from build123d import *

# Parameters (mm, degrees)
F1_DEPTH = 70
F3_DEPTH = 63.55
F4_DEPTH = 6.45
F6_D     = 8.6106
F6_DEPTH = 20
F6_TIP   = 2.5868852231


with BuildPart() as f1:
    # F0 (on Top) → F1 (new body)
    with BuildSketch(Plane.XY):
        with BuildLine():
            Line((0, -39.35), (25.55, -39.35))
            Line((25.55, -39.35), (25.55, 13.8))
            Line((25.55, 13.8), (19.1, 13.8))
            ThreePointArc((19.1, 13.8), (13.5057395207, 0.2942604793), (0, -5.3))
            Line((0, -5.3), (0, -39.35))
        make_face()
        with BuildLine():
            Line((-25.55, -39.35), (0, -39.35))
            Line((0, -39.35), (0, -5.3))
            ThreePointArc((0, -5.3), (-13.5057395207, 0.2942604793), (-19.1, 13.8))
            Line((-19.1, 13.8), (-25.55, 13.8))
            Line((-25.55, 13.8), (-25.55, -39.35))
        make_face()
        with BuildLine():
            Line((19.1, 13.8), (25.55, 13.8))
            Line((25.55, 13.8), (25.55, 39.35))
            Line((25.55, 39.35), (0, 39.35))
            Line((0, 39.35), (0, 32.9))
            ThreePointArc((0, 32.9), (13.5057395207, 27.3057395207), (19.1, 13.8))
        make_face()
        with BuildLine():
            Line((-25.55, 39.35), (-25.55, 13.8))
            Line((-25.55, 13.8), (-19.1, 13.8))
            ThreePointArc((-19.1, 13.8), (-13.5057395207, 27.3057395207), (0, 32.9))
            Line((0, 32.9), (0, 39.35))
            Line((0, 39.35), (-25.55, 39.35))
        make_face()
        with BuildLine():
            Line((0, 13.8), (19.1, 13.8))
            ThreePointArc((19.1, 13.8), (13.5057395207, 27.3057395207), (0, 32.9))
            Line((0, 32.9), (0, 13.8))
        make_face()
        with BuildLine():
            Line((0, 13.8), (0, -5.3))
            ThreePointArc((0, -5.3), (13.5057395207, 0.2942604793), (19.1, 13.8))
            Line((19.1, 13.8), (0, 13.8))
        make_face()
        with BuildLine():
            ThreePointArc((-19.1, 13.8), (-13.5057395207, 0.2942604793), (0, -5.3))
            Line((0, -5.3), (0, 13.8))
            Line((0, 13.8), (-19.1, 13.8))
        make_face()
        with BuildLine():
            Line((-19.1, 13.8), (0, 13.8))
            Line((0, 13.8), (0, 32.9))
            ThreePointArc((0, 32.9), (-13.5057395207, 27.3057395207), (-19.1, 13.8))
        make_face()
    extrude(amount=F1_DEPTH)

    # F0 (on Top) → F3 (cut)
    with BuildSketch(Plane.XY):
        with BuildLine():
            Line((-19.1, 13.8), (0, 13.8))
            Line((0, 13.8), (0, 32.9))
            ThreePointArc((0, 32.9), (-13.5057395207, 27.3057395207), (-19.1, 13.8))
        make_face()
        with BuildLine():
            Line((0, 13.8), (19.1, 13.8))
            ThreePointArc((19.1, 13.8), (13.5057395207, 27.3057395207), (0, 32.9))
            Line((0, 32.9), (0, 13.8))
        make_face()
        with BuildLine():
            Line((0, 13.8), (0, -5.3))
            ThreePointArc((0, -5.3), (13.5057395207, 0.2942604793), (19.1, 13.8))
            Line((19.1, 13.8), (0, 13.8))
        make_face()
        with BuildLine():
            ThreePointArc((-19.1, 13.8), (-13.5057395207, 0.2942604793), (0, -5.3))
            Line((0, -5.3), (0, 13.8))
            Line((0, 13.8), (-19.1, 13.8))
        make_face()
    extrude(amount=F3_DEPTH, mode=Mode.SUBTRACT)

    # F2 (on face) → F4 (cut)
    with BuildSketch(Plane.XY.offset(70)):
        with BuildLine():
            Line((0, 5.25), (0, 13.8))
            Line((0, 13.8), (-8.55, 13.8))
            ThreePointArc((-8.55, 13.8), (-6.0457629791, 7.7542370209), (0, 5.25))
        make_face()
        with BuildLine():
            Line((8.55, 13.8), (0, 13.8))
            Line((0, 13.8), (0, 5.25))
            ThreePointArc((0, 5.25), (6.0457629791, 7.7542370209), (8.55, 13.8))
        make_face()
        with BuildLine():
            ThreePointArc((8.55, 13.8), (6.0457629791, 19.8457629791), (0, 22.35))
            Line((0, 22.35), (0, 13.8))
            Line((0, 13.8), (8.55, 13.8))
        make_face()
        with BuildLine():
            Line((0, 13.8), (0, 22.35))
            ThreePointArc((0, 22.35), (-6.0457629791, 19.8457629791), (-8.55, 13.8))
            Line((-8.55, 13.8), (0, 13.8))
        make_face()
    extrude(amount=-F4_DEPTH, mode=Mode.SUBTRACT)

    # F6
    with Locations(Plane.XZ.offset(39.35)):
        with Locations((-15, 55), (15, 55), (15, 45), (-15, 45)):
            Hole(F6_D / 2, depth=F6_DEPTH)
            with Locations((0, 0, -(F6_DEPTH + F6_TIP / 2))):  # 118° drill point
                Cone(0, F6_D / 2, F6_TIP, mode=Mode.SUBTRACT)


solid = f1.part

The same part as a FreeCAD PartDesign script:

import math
import FreeCAD as App
import Part
import Sketcher
Q = App.Units.Quantity


def add_polygon(sketch, points):
    """Adds a closed chain of lines whose ends are joined by coincident constraints."""
    first, n = sketch.GeometryCount, len(points)
    for a, b in zip(points, points[1:] + points[:1]):
        sketch.addGeometry(Part.LineSegment(App.Vector(*a, 0), App.Vector(*b, 0)), False)
    for i in range(n):
        sketch.addConstraint(Sketcher.Constraint("Coincident", first + i, 2, first + (i + 1) % n, 1))

doc = App.newDocument("Part")
body = doc.addObject("PartDesign::Body", "Body")

sketch1 = body.newObject("Sketcher::SketchObject", "Sketch")
sketch1.AttachmentSupport = (doc.getObject("XY_Plane"), [""])
sketch1.MapMode = "FlatFace"
add_polygon(sketch1, [(26, -39), (26, 39), (-26, 39), (-26, -39)])
sketch1.addConstraint([
    Sketcher.Constraint("Vertical", 0),
    Sketcher.Constraint("Horizontal", 1),
    Sketcher.Constraint("Vertical", 2),
    Sketcher.Constraint("Horizontal", 3),
    Sketcher.Constraint("Symmetric", 0, 2, 2, 2, -1, 1),
    Sketcher.Constraint("DistanceX", 1, 2, 1, 1, Q("51.1 mm")),
    Sketcher.Constraint("DistanceY", 0, 1, 0, 2, Q("78.7 mm")),
])
pad1 = body.newObject("PartDesign::Pad", "Pad")
pad1.Profile = sketch1
pad1.Length = 70

sketch2 = body.newObject("Sketcher::SketchObject", "Sketch001")
sketch2.AttachmentSupport = (doc.getObject("XY_Plane"), [""])
sketch2.MapMode = "FlatFace"
sketch2.addGeometry([
    Part.ArcOfCircle(Part.Circle(App.Vector(0, 14, 0), App.Vector(0, 0, 1), 19), math.radians(-90), math.radians(0)),
    Part.ArcOfCircle(Part.Circle(App.Vector(0, 14, 0), App.Vector(0, 0, 1), 19), math.radians(0), math.radians(90)),
    Part.ArcOfCircle(Part.Circle(App.Vector(0, 14, 0), App.Vector(0, 0, 1), 19), math.radians(90), math.radians(180)),
    Part.ArcOfCircle(Part.Circle(App.Vector(0, 14, 0), App.Vector(0, 0, 1), 19), math.radians(180), math.radians(270)),
], False)
sketch2.addConstraint([
    Sketcher.Constraint("Tangent", 0, 2, 1, 1),
    Sketcher.Constraint("Tangent", 1, 2, 2, 1),
    Sketcher.Constraint("Tangent", 2, 2, 3, 1),
    Sketcher.Constraint("Tangent", 3, 2, 0, 1),
    Sketcher.Constraint("Equal", 0, 1),
    Sketcher.Constraint("Symmetric", 0, 2, 2, 2, -2),
    Sketcher.Constraint("PointOnObject", 1, 2, -2),
    Sketcher.Constraint("PointOnObject", 3, 2, -2),
    Sketcher.Constraint("Horizontal", 3, 3, 0, 2),
    Sketcher.Constraint("Radius", 0, Q("19.1 mm")),
    Sketcher.Constraint("DistanceY", -1, 1, 0, 3, Q("13.8 mm")),
])
pocket1 = body.newObject("PartDesign::Pocket", "Pocket")
pocket1.Profile = sketch2
pocket1.Length = 63.55
pocket1.Reversed = True

sketch3 = body.newObject("Sketcher::SketchObject", "Sketch002")
sketch3.AttachmentSupport = (doc.getObject("XY_Plane"), [""])
sketch3.MapMode = "FlatFace"
sketch3.AttachmentOffset = App.Placement(App.Vector(0, 0, 70), App.Rotation())
sketch3.addGeometry([
    Part.ArcOfCircle(Part.Circle(App.Vector(0, 14, 0), App.Vector(0, 0, 1), 9), math.radians(180), math.radians(270)),
    Part.ArcOfCircle(Part.Circle(App.Vector(0, 14, 0), App.Vector(0, 0, 1), 9), math.radians(-90), math.radians(0)),
    Part.ArcOfCircle(Part.Circle(App.Vector(0, 14, 0), App.Vector(0, 0, 1), 9), math.radians(0), math.radians(90)),
    Part.ArcOfCircle(Part.Circle(App.Vector(0, 14, 0), App.Vector(0, 0, 1), 9), math.radians(90), math.radians(180)),
], False)
sketch3.addConstraint([
    Sketcher.Constraint("Tangent", 0, 2, 1, 1),
    Sketcher.Constraint("Tangent", 1, 2, 2, 1),
    Sketcher.Constraint("Tangent", 2, 2, 3, 1),
    Sketcher.Constraint("Tangent", 3, 2, 0, 1),
    Sketcher.Constraint("Equal", 0, 1),
    Sketcher.Constraint("Symmetric", 1, 2, 3, 2, -2),
    Sketcher.Constraint("PointOnObject", 0, 2, -2),
    Sketcher.Constraint("PointOnObject", 2, 2, -2),
    Sketcher.Constraint("Horizontal", 3, 3, 1, 2),
    Sketcher.Constraint("Radius", 0, Q("8.55 mm")),
    Sketcher.Constraint("DistanceY", -1, 1, 0, 3, Q("13.8 mm")),
])
pocket2 = body.newObject("PartDesign::Pocket", "Pocket001")
pocket2.Profile = sketch3
pocket2.Length = 6.45

sketch4 = body.newObject("Sketcher::SketchObject", "Sketch003")
sketch4.AttachmentSupport = (doc.getObject("XZ_Plane"), [""])
sketch4.MapMode = "FlatFace"
sketch4.AttachmentOffset = App.Placement(App.Vector(0, 0, 39.35), App.Rotation())
sketch4.addGeometry([
    Part.Circle(App.Vector(-15, 55, 0), App.Vector(0, 0, 1), 4.3),
    Part.Circle(App.Vector(15, 55, 0), App.Vector(0, 0, 1), 4.3),
    Part.Circle(App.Vector(15, 45, 0), App.Vector(0, 0, 1), 4.3),
    Part.Circle(App.Vector(-15, 45, 0), App.Vector(0, 0, 1), 4.3),
], False)
sketch4.addConstraint([
    Sketcher.Constraint("Equal", 0, 1),
    Sketcher.Constraint("Equal", 1, 2),
    Sketcher.Constraint("Equal", 2, 3),
    Sketcher.Constraint("Symmetric", 0, 3, 1, 3, -2),
    Sketcher.Constraint("Symmetric", 2, 3, 3, 3, -2),
    Sketcher.Constraint("Vertical", 1, 3, 2, 3),
    Sketcher.Constraint("DistanceX", 0, 3, -1, 1, Q("15 mm")),
    Sketcher.Constraint("DistanceY", -1, 1, 0, 3, Q("55 mm")),
    Sketcher.Constraint("DistanceY", -1, 1, 2, 3, Q("45 mm")),
    Sketcher.Constraint("Diameter", 0, Q("8.6106 mm")),
])
doc.recompute()
hole = body.newObject("PartDesign::Hole", "Hole")
hole.Profile = sketch4
hole.ThreadType = "None"
hole.Diameter = 8.6106
hole.DepthType = "Dimension"
hole.Depth = 20
hole.DrillPoint = "Angled"
hole.DrillPointAngle = 118

doc.recompute()
